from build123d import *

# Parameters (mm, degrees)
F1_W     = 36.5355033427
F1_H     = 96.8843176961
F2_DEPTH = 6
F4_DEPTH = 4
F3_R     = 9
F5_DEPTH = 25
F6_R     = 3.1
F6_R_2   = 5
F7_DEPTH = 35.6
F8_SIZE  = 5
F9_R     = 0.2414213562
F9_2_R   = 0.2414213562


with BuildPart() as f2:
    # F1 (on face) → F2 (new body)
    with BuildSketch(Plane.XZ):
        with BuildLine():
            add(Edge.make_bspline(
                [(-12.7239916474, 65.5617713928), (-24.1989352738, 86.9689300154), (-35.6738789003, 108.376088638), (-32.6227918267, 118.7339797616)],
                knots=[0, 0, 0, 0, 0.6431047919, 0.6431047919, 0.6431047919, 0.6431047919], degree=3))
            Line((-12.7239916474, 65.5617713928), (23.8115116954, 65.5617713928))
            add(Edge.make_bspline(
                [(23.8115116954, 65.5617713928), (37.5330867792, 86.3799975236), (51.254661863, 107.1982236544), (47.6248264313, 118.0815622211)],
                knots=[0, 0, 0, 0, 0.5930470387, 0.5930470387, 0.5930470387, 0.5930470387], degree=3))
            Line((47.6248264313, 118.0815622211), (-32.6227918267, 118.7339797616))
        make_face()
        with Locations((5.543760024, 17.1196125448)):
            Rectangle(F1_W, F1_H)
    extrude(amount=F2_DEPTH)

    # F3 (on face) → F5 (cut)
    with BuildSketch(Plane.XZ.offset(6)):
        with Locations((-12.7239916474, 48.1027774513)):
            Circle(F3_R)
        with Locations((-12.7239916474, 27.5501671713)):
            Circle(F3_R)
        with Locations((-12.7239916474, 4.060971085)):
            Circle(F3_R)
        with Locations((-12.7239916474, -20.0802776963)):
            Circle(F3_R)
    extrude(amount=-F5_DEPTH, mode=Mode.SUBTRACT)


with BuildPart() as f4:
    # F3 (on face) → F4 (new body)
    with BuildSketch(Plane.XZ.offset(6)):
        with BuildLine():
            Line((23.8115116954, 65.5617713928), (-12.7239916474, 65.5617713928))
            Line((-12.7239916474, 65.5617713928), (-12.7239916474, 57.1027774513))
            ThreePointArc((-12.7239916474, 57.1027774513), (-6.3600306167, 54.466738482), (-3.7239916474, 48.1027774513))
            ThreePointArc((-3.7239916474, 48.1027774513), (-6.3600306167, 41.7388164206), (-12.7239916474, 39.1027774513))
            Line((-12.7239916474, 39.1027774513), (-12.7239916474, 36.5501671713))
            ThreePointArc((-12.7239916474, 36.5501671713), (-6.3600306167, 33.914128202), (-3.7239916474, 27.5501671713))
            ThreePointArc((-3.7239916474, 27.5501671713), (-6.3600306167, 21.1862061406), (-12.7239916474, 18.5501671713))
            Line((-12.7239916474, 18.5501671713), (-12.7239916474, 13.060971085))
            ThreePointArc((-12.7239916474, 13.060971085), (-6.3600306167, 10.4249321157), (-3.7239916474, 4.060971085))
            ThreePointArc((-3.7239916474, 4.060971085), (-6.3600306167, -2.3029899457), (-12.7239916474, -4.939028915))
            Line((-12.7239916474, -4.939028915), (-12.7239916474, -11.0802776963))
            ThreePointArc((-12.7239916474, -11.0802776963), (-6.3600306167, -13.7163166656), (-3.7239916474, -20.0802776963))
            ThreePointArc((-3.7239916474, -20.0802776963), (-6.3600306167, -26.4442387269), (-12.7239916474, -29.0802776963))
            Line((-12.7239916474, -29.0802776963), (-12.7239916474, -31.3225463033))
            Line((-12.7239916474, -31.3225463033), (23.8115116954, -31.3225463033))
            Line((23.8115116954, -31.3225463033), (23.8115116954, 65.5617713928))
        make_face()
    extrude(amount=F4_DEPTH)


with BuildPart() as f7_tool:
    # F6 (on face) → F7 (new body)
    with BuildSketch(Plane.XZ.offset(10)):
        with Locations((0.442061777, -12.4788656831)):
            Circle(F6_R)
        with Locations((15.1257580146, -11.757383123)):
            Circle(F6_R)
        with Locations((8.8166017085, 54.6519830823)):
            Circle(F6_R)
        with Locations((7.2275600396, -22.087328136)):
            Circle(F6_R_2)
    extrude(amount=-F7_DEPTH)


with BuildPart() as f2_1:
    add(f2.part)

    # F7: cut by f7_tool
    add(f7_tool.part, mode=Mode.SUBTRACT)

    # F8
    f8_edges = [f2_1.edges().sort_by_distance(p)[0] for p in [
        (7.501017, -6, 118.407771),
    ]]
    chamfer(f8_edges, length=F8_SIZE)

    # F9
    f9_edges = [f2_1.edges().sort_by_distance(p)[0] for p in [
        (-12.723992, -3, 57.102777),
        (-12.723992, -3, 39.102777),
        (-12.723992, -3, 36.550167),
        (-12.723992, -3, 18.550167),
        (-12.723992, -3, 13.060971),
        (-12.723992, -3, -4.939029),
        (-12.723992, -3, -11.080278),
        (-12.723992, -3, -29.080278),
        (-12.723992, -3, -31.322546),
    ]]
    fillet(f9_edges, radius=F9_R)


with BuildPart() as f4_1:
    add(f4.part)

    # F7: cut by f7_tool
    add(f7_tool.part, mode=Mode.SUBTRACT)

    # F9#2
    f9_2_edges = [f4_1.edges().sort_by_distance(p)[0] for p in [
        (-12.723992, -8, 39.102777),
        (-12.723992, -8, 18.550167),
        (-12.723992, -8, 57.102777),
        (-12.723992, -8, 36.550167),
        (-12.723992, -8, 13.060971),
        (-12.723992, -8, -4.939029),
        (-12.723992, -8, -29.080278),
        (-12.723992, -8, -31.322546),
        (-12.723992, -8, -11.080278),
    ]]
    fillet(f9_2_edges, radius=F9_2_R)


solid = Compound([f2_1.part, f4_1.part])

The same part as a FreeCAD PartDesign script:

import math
import FreeCAD as App
import Part
import Sketcher
from FreeCAD import Vector
Q = App.Units.Quantity


def edges_at(feature, points):
    """Names of the edges that pass closest to the given points."""
    edges = feature.Shape.Edges
    near = lambda p: min(range(len(edges)), key=lambda i: edges[i].distToShape(Part.Vertex(*p))[0])
    return sorted({f"Edge{near(p) + 1}" for p in points})

doc = App.newDocument("Part")
body = doc.addObject("PartDesign::Body", "Body")

sketch1 = doc.addObject("Sketcher::SketchObject", "Sketch")
body.addObject(sketch1)
sketch1.AttachmentSupport = (doc.XZ_Plane, [""])
sketch1.MapMode = "FlatFace"
sketch1.addGeometry(Part.BSplineCurve([Vector(-12.723992, 65.561771, 0), Vector(-24.198935, 86.96893, 0), Vector(-35.673879, 108.376089, 0), Vector(-32.622792, 118.73398, 0)], [4, 4], [0, 0.643104792], False, 3, [1, 1, 1, 1], False), False)
sketch1.addGeometry(Part.LineSegment(Vector(-12.723992, 65.561771, 0), Vector(-12.723992, -31.322546, 0)), False)
sketch1.addGeometry(Part.LineSegment(Vector(-12.723992, -31.322546, 0), Vector(23.811512, -31.322546, 0)), False)
sketch1.addGeometry(Part.LineSegment(Vector(23.811512, -31.322546, 0), Vector(23.811512, 65.561771, 0)), False)
sketch1.addGeometry(Part.BSplineCurve([Vector(23.811512, 65.561771, 0), Vector(37.533087, 86.379998, 0), Vector(51.254662, 107.198224, 0), Vector(47.624826, 118.081562, 0)], [4, 4], [0, 0.593047039], False, 3, [1, 1, 1, 1], False), False)
sketch1.addGeometry(Part.LineSegment(Vector(47.624826, 118.081562, 0), Vector(-32.622792, 118.73398, 0)), False)
sketch1.addConstraint(Sketcher.Constraint("Block", 0))
sketch1.addConstraint(Sketcher.Constraint("Block", 4))
sketch1.addConstraint(Sketcher.Constraint("Coincident", 0, 1, 1, 1))
sketch1.addConstraint(Sketcher.Constraint("Coincident", 1, 2, 2, 1))
sketch1.addConstraint(Sketcher.Constraint("Coincident", 2, 2, 3, 1))
sketch1.addConstraint(Sketcher.Constraint("Coincident", 3, 2, 4, 1))
sketch1.addConstraint(Sketcher.Constraint("Coincident", 4, 2, 5, 1))
sketch1.addConstraint(Sketcher.Constraint("Coincident", 5, 2, 0, 2))
sketch1.addConstraint(Sketcher.Constraint("Vertical", 1))
sketch1.addConstraint(Sketcher.Constraint("Horizontal", 2))
sketch1.addConstraint(Sketcher.Constraint("Vertical", 3))
sketch1.addConstraint(Sketcher.Constraint("DistanceY", 1, 2, 1, 1, Q("96.884318 mm")))
pad1 = doc.addObject("PartDesign::Pad", "Pad")
body.addObject(pad1)
pad1.Profile = sketch1
pad1.Length = 6

sketch2 = doc.addObject("Sketcher::SketchObject", "Sketch001")
body.addObject(sketch2)
sketch2.AttachmentSupport = (doc.XZ_Plane, [""])
sketch2.MapMode = "FlatFace"
sketch2.AttachmentOffset = App.Placement(Vector(0, 0, 6), App.Rotation())
sketch2.addGeometry(Part.Circle(Vector(-13, 48, 0), Vector(0, 0, 1), 9), False)
sketch2.addGeometry(Part.Circle(Vector(-13, 28, 0), Vector(0, 0, 1), 9), False)
sketch2.addGeometry(Part.Circle(Vector(-13, 4, 0), Vector(0, 0, 1), 9), False)
sketch2.addGeometry(Part.Circle(Vector(-13, -20, 0), Vector(0, 0, 1), 9), False)
sketch2.addConstraint(Sketcher.Constraint("Equal", 0, 1))
sketch2.addConstraint(Sketcher.Constraint("Equal", 1, 2))
sketch2.addConstraint(Sketcher.Constraint("Equal", 2, 3))
sketch2.addConstraint(Sketcher.Constraint("Vertical", 0, 3, 1, 3))
sketch2.addConstraint(Sketcher.Constraint("Vertical", 1, 3, 2, 3))
sketch2.addConstraint(Sketcher.Constraint("Vertical", 2, 3, 3, 3))
sketch2.addConstraint(Sketcher.Constraint("Diameter", 0, Q("18 mm")))
sketch2.addConstraint(Sketcher.Constraint("DistanceX", 0, 3, -1, 1, Q("12.723992 mm")))
sketch2.addConstraint(Sketcher.Constraint("DistanceY", -1, 1, 2, 3, Q("4.060971 mm")))
sketch2.addConstraint(Sketcher.Constraint("DistanceY", 1, 3, 0, 3, Q("20.55261 mm")))
sketch2.addConstraint(Sketcher.Constraint("DistanceY", 3, 3, 2, 3, Q("24.141249 mm")))
sketch2.addConstraint(Sketcher.Constraint("DistanceY", -1, 1, 0, 3, Q("48.102777 mm")))
pocket1 = doc.addObject("PartDesign::Pocket", "Pocket")
body.addObject(pocket1)
pocket1.Profile = sketch2
pocket1.Length = 25
body2 = doc.addObject("PartDesign::Body", "Body001")

sketch3 = doc.addObject("Sketcher::SketchObject", "Sketch002")
body2.addObject(sketch3)
sketch3.AttachmentSupport = (doc.getObject("XZ_Plane001"), [""])
sketch3.MapMode = "FlatFace"
sketch3.AttachmentOffset = App.Placement(Vector(0, 0, 6), App.Rotation())
sketch3.addGeometry(Part.LineSegment(Vector(23.8, 65.6, 0), Vector(-12.7, 65.6, 0)), False)
sketch3.addGeometry(Part.LineSegment(Vector(-12.7, 65.6, 0), Vector(-12.7, 57.1, 0)), False)
sketch3.addGeometry(Part.ArcOfCircle(Part.Circle(Vector(-12.7, 48.1, 0), Vector(0, 0, 1), 9), math.radians(0), math.radians(90)), False)
sketch3.addGeometry(Part.ArcOfCircle(Part.Circle(Vector(-12.7, 48.1, 0), Vector(0, 0, 1), 9), math.radians(-90), math.radians(0)), False)
sketch3.addGeometry(Part.LineSegment(Vector(-12.7, 39.1, 0), Vector(-12.7, 36.6, 0)), False)
sketch3.addGeometry(Part.ArcOfCircle(Part.Circle(Vector(-12.7, 27.6, 0), Vector(0, 0, 1), 9), math.radians(0), math.radians(90)), False)
sketch3.addGeometry(Part.ArcOfCircle(Part.Circle(Vector(-12.7, 27.6, 0), Vector(0, 0, 1), 9), math.radians(-90), math.radians(0)), False)
sketch3.addGeometry(Part.LineSegment(Vector(-12.7, 18.6, 0), Vector(-12.7, 13.1, 0)), False)
sketch3.addGeometry(Part.ArcOfCircle(Part.Circle(Vector(-12.7, 4.1, 0), Vector(0, 0, 1), 9), math.radians(0), math.radians(90)), False)
sketch3.addGeometry(Part.ArcOfCircle(Part.Circle(Vector(-12.7, 4.1, 0), Vector(0, 0, 1), 9), math.radians(-90), math.radians(0)), False)
sketch3.addGeometry(Part.LineSegment(Vector(-12.7, -4.9, 0), Vector(-12.7, -11.1, 0)), False)
sketch3.addGeometry(Part.ArcOfCircle(Part.Circle(Vector(-12.7, -20.1, 0), Vector(0, 0, 1), 9), math.radians(0), math.radians(90)), False)
sketch3.addGeometry(Part.ArcOfCircle(Part.Circle(Vector(-12.7, -20.1, 0), Vector(0, 0, 1), 9), math.radians(-90), math.radians(0)), False)
sketch3.addGeometry(Part.LineSegment(Vector(-12.7, -29.1, 0), Vector(-12.7, -31.3, 0)), False)
sketch3.addGeometry(Part.LineSegment(Vector(-12.7, -31.3, 0), Vector(23.8, -31.3, 0)), False)
sketch3.addGeometry(Part.LineSegment(Vector(23.8, -31.3, 0), Vector(23.8, 65.6, 0)), False)
sketch3.addConstraint(Sketcher.Constraint("Coincident", 0, 2, 1, 1))
sketch3.addConstraint(Sketcher.Constraint("Coincident", 1, 2, 2, 2))
sketch3.addConstraint(Sketcher.Constraint("Tangent", 2, 1, 3, 2))
sketch3.addConstraint(Sketcher.Constraint("Coincident", 3, 1, 4, 1))
sketch3.addConstraint(Sketcher.Constraint("Coincident", 4, 2, 5, 2))
sketch3.addConstraint(Sketcher.Constraint("Tangent", 5, 1, 6, 2))
sketch3.addConstraint(Sketcher.Constraint("Coincident", 6, 1, 7, 1))
sketch3.addConstraint(Sketcher.Constraint("Coincident", 7, 2, 8, 2))
sketch3.addConstraint(Sketcher.Constraint("Tangent", 8, 1, 9, 2))
sketch3.addConstraint(Sketcher.Constraint("Coincident", 9, 1, 10, 1))
sketch3.addConstraint(Sketcher.Constraint("Coincident", 10, 2, 11, 2))
sketch3.addConstraint(Sketcher.Constraint("Tangent", 11, 1, 12, 2))
sketch3.addConstraint(Sketcher.Constraint("Coincident", 12, 1, 13, 1))
sketch3.addConstraint(Sketcher.Constraint("Coincident", 13, 2, 14, 1))
sketch3.addConstraint(Sketcher.Constraint("Coincident", 14, 2, 15, 1))
sketch3.addConstraint(Sketcher.Constraint("Coincident", 15, 2, 0, 1))
sketch3.addConstraint(Sketcher.Constraint("Horizontal", 0))
sketch3.addConstraint(Sketcher.Constraint("Vertical", 1))
sketch3.addConstraint(Sketcher.Constraint("Vertical", 4))
sketch3.addConstraint(Sketcher.Constraint("Vertical", 7))
sketch3.addConstraint(Sketcher.Constraint("Vertical", 10))
sketch3.addConstraint(Sketcher.Constraint("Vertical", 13))
sketch3.addConstraint(Sketcher.Constraint("Horizontal", 14))
sketch3.addConstraint(Sketcher.Constraint("Vertical", 15))
sketch3.addConstraint(Sketcher.Constraint("Equal", 2, 3))
sketch3.addConstraint(Sketcher.Constraint("Equal", 3, 5))
sketch3.addConstraint(Sketcher.Constraint("Equal", 5, 6))
sketch3.addConstraint(Sketcher.Constraint("Equal", 6, 8))
sketch3.addConstraint(Sketcher.Constraint("Equal", 8, 9))
sketch3.addConstraint(Sketcher.Constraint("Equal", 9, 11))
sketch3.addConstraint(Sketcher.Constraint("Equal", 11, 12))
sketch3.addConstraint(Sketcher.Constraint("Horizontal", 3, 3, 2, 1))
sketch3.addConstraint(Sketcher.Constraint("Horizontal", 6, 3, 5, 1))
sketch3.addConstraint(Sketcher.Constraint("Horizontal", 9, 3, 8, 1))
sketch3.addConstraint(Sketcher.Constraint("Horizontal", 12, 3, 11, 1))
sketch3.addConstraint(Sketcher.Constraint("Vertical", 3, 3, 5, 3))
sketch3.addConstraint(Sketcher.Constraint("Vertical", 6, 3, 8, 3))
sketch3.addConstraint(Sketcher.Constraint("Vertical", 9, 3, 11, 3))
sketch3.addConstraint(Sketcher.Constraint("Vertical", 12, 3, 0, 2))
sketch3.addConstraint(Sketcher.Constraint("Vertical", 1, 2, 3, 1))
sketch3.addConstraint(Sketcher.Constraint("Vertical", 4, 2, 6, 1))
sketch3.addConstraint(Sketcher.Constraint("Vertical", 7, 2, 9, 1))
sketch3.addConstraint(Sketcher.Constraint("Vertical", 10, 2, 12, 1))
sketch3.addConstraint(Sketcher.Constraint("Radius", 2, Q("9 mm")))
sketch3.addConstraint(Sketcher.Constraint("DistanceY", 4, 2, 4, 1, Q("2.55261 mm")))
sketch3.addConstraint(Sketcher.Constraint("DistanceY", 10, 2, 10, 1, Q("6.141249 mm")))
sketch3.addConstraint(Sketcher.Constraint("DistanceY", 13, 2, 13, 1, Q("2.242269 mm")))
sketch3.addConstraint(Sketcher.Constraint("DistanceY", 8, 3, 0, 2, Q("61.5008 mm")))
sketch3.addConstraint(Sketcher.Constraint("DistanceX", 0, 2, 0, 1, Q("36.535503 mm")))
sketch3.addConstraint(Sketcher.Constraint("DistanceY", 1, 2, 1, 1, Q("8.458994 mm")))
sketch3.addConstraint(Sketcher.Constraint("DistanceX", 2, 3, -1, 1, Q("12.723992 mm")))
sketch3.addConstraint(Sketcher.Constraint("DistanceY", -1, 1, 8, 3, Q("4.060971 mm")))
pad2 = doc.addObject("PartDesign::Pad", "Pad001")
body2.addObject(pad2)
pad2.Profile = sketch3
pad2.Length = 4
body3 = doc.addObject("PartDesign::Body", "Body002")
body3.AllowCompound = True

sketch4 = doc.addObject("Sketcher::SketchObject", "Sketch003")
body3.addObject(sketch4)
sketch4.AttachmentSupport = (doc.getObject("XZ_Plane002"), [""])
sketch4.MapMode = "FlatFace"
sketch4.AttachmentOffset = App.Placement(Vector(0, 0, 10), App.Rotation())
sketch4.addGeometry(Part.Circle(Vector(0.4, -12.5, 0), Vector(0, 0, 1), 3.1), False)
sketch4.addGeometry(Part.Circle(Vector(15.1, -11.8, 0), Vector(0, 0, 1), 3.1), False)
sketch4.addGeometry(Part.Circle(Vector(8.8, 54.7, 0), Vector(0, 0, 1), 3.1), False)
sketch4.addGeometry(Part.Circle(Vector(7.2, -22.1, 0), Vector(0, 0, 1), 5), False)
sketch4.addConstraint(Sketcher.Constraint("Equal", 0, 1))
sketch4.addConstraint(Sketcher.Constraint("Equal", 1, 2))
sketch4.addConstraint(Sketcher.Constraint("Diameter", 3, Q("10 mm")))
sketch4.addConstraint(Sketcher.Constraint("Diameter", 0, Q("6.2 mm")))
sketch4.addConstraint(Sketcher.Constraint("DistanceX", -1, 1, 2, 3, Q("8.816602 mm")))
sketch4.addConstraint(Sketcher.Constraint("DistanceX", 0, 3, 3, 3, Q("6.785498 mm")))
sketch4.addConstraint(Sketcher.Constraint("DistanceX", -1, 1, 0, 3, Q("0.442062 mm")))
sketch4.addConstraint(Sketcher.Constraint("DistanceX", -1, 1, 1, 3, Q("15.125758 mm")))
sketch4.addConstraint(Sketcher.Constraint("DistanceY", 3, 3, -1, 1, Q("22.087328 mm")))
sketch4.addConstraint(Sketcher.Constraint("DistanceY", 0, 3, 2, 3, Q("67.130849 mm")))
sketch4.addConstraint(Sketcher.Constraint("DistanceY", 3, 3, 2, 3, Q("76.739311 mm")))
sketch4.addConstraint(Sketcher.Constraint("DistanceY", 1, 3, -1, 1, Q("11.757383 mm")))
pad3 = doc.addObject("PartDesign::Pad", "Pad002")
body3.addObject(pad3)
pad3.Profile = sketch4
pad3.Length = 35.6
pad3.Reversed = True
doc.recompute()

body4 = doc.addObject("PartDesign::Body", "Body003")
body4.BaseFeature = body3
boolean = doc.addObject("PartDesign::Boolean", "Boolean")
body.addObject(boolean)
boolean.Type = "Cut"
boolean.addObjects([body4])
doc.recompute()

chamfer = doc.addObject("PartDesign::Chamfer", "Chamfer")
body.addObject(chamfer)
chamfer.Base = (boolean, edges_at(boolean, [(7.501, -6, 118.408)]))
chamfer.Size = 5
doc.recompute()

fillet = doc.addObject("PartDesign::Fillet", "Fillet")
body.addObject(fillet)
fillet.Base = (chamfer, edges_at(chamfer, [
    (-12.724, -3, 57.103),
    (-12.724, -3, 39.103),
    (-12.724, -3, 36.55),
    (-12.724, -3, 18.55),
    (-12.724, -3, 13.061),
    (-12.724, -3, -4.939),
    (-12.724, -3, -11.08),
    (-12.724, -3, -29.08),
    (-12.724, -3, -31.323),
]))
fillet.Radius = 0.241421
doc.recompute()

boolean2 = doc.addObject("PartDesign::Boolean", "Boolean001")
body2.addObject(boolean2)
boolean2.Type = "Cut"
boolean2.addObjects([body3])
doc.recompute()

fillet2 = doc.addObject("PartDesign::Fillet", "Fillet001")
body2.addObject(fillet2)
fillet2.Base = (boolean2, edges_at(boolean2, [
    (-12.724, -8, 39.103),
    (-12.724, -8, 18.55),
    (-12.724, -8, 57.103),
    (-12.724, -8, 36.55),
    (-12.724, -8, 13.061),
    (-12.724, -8, -4.939),
    (-12.724, -8, -29.08),
    (-12.724, -8, -31.323),
    (-12.724, -8, -11.08),
]))
fillet2.Radius = 0.241421

doc.recompute()
